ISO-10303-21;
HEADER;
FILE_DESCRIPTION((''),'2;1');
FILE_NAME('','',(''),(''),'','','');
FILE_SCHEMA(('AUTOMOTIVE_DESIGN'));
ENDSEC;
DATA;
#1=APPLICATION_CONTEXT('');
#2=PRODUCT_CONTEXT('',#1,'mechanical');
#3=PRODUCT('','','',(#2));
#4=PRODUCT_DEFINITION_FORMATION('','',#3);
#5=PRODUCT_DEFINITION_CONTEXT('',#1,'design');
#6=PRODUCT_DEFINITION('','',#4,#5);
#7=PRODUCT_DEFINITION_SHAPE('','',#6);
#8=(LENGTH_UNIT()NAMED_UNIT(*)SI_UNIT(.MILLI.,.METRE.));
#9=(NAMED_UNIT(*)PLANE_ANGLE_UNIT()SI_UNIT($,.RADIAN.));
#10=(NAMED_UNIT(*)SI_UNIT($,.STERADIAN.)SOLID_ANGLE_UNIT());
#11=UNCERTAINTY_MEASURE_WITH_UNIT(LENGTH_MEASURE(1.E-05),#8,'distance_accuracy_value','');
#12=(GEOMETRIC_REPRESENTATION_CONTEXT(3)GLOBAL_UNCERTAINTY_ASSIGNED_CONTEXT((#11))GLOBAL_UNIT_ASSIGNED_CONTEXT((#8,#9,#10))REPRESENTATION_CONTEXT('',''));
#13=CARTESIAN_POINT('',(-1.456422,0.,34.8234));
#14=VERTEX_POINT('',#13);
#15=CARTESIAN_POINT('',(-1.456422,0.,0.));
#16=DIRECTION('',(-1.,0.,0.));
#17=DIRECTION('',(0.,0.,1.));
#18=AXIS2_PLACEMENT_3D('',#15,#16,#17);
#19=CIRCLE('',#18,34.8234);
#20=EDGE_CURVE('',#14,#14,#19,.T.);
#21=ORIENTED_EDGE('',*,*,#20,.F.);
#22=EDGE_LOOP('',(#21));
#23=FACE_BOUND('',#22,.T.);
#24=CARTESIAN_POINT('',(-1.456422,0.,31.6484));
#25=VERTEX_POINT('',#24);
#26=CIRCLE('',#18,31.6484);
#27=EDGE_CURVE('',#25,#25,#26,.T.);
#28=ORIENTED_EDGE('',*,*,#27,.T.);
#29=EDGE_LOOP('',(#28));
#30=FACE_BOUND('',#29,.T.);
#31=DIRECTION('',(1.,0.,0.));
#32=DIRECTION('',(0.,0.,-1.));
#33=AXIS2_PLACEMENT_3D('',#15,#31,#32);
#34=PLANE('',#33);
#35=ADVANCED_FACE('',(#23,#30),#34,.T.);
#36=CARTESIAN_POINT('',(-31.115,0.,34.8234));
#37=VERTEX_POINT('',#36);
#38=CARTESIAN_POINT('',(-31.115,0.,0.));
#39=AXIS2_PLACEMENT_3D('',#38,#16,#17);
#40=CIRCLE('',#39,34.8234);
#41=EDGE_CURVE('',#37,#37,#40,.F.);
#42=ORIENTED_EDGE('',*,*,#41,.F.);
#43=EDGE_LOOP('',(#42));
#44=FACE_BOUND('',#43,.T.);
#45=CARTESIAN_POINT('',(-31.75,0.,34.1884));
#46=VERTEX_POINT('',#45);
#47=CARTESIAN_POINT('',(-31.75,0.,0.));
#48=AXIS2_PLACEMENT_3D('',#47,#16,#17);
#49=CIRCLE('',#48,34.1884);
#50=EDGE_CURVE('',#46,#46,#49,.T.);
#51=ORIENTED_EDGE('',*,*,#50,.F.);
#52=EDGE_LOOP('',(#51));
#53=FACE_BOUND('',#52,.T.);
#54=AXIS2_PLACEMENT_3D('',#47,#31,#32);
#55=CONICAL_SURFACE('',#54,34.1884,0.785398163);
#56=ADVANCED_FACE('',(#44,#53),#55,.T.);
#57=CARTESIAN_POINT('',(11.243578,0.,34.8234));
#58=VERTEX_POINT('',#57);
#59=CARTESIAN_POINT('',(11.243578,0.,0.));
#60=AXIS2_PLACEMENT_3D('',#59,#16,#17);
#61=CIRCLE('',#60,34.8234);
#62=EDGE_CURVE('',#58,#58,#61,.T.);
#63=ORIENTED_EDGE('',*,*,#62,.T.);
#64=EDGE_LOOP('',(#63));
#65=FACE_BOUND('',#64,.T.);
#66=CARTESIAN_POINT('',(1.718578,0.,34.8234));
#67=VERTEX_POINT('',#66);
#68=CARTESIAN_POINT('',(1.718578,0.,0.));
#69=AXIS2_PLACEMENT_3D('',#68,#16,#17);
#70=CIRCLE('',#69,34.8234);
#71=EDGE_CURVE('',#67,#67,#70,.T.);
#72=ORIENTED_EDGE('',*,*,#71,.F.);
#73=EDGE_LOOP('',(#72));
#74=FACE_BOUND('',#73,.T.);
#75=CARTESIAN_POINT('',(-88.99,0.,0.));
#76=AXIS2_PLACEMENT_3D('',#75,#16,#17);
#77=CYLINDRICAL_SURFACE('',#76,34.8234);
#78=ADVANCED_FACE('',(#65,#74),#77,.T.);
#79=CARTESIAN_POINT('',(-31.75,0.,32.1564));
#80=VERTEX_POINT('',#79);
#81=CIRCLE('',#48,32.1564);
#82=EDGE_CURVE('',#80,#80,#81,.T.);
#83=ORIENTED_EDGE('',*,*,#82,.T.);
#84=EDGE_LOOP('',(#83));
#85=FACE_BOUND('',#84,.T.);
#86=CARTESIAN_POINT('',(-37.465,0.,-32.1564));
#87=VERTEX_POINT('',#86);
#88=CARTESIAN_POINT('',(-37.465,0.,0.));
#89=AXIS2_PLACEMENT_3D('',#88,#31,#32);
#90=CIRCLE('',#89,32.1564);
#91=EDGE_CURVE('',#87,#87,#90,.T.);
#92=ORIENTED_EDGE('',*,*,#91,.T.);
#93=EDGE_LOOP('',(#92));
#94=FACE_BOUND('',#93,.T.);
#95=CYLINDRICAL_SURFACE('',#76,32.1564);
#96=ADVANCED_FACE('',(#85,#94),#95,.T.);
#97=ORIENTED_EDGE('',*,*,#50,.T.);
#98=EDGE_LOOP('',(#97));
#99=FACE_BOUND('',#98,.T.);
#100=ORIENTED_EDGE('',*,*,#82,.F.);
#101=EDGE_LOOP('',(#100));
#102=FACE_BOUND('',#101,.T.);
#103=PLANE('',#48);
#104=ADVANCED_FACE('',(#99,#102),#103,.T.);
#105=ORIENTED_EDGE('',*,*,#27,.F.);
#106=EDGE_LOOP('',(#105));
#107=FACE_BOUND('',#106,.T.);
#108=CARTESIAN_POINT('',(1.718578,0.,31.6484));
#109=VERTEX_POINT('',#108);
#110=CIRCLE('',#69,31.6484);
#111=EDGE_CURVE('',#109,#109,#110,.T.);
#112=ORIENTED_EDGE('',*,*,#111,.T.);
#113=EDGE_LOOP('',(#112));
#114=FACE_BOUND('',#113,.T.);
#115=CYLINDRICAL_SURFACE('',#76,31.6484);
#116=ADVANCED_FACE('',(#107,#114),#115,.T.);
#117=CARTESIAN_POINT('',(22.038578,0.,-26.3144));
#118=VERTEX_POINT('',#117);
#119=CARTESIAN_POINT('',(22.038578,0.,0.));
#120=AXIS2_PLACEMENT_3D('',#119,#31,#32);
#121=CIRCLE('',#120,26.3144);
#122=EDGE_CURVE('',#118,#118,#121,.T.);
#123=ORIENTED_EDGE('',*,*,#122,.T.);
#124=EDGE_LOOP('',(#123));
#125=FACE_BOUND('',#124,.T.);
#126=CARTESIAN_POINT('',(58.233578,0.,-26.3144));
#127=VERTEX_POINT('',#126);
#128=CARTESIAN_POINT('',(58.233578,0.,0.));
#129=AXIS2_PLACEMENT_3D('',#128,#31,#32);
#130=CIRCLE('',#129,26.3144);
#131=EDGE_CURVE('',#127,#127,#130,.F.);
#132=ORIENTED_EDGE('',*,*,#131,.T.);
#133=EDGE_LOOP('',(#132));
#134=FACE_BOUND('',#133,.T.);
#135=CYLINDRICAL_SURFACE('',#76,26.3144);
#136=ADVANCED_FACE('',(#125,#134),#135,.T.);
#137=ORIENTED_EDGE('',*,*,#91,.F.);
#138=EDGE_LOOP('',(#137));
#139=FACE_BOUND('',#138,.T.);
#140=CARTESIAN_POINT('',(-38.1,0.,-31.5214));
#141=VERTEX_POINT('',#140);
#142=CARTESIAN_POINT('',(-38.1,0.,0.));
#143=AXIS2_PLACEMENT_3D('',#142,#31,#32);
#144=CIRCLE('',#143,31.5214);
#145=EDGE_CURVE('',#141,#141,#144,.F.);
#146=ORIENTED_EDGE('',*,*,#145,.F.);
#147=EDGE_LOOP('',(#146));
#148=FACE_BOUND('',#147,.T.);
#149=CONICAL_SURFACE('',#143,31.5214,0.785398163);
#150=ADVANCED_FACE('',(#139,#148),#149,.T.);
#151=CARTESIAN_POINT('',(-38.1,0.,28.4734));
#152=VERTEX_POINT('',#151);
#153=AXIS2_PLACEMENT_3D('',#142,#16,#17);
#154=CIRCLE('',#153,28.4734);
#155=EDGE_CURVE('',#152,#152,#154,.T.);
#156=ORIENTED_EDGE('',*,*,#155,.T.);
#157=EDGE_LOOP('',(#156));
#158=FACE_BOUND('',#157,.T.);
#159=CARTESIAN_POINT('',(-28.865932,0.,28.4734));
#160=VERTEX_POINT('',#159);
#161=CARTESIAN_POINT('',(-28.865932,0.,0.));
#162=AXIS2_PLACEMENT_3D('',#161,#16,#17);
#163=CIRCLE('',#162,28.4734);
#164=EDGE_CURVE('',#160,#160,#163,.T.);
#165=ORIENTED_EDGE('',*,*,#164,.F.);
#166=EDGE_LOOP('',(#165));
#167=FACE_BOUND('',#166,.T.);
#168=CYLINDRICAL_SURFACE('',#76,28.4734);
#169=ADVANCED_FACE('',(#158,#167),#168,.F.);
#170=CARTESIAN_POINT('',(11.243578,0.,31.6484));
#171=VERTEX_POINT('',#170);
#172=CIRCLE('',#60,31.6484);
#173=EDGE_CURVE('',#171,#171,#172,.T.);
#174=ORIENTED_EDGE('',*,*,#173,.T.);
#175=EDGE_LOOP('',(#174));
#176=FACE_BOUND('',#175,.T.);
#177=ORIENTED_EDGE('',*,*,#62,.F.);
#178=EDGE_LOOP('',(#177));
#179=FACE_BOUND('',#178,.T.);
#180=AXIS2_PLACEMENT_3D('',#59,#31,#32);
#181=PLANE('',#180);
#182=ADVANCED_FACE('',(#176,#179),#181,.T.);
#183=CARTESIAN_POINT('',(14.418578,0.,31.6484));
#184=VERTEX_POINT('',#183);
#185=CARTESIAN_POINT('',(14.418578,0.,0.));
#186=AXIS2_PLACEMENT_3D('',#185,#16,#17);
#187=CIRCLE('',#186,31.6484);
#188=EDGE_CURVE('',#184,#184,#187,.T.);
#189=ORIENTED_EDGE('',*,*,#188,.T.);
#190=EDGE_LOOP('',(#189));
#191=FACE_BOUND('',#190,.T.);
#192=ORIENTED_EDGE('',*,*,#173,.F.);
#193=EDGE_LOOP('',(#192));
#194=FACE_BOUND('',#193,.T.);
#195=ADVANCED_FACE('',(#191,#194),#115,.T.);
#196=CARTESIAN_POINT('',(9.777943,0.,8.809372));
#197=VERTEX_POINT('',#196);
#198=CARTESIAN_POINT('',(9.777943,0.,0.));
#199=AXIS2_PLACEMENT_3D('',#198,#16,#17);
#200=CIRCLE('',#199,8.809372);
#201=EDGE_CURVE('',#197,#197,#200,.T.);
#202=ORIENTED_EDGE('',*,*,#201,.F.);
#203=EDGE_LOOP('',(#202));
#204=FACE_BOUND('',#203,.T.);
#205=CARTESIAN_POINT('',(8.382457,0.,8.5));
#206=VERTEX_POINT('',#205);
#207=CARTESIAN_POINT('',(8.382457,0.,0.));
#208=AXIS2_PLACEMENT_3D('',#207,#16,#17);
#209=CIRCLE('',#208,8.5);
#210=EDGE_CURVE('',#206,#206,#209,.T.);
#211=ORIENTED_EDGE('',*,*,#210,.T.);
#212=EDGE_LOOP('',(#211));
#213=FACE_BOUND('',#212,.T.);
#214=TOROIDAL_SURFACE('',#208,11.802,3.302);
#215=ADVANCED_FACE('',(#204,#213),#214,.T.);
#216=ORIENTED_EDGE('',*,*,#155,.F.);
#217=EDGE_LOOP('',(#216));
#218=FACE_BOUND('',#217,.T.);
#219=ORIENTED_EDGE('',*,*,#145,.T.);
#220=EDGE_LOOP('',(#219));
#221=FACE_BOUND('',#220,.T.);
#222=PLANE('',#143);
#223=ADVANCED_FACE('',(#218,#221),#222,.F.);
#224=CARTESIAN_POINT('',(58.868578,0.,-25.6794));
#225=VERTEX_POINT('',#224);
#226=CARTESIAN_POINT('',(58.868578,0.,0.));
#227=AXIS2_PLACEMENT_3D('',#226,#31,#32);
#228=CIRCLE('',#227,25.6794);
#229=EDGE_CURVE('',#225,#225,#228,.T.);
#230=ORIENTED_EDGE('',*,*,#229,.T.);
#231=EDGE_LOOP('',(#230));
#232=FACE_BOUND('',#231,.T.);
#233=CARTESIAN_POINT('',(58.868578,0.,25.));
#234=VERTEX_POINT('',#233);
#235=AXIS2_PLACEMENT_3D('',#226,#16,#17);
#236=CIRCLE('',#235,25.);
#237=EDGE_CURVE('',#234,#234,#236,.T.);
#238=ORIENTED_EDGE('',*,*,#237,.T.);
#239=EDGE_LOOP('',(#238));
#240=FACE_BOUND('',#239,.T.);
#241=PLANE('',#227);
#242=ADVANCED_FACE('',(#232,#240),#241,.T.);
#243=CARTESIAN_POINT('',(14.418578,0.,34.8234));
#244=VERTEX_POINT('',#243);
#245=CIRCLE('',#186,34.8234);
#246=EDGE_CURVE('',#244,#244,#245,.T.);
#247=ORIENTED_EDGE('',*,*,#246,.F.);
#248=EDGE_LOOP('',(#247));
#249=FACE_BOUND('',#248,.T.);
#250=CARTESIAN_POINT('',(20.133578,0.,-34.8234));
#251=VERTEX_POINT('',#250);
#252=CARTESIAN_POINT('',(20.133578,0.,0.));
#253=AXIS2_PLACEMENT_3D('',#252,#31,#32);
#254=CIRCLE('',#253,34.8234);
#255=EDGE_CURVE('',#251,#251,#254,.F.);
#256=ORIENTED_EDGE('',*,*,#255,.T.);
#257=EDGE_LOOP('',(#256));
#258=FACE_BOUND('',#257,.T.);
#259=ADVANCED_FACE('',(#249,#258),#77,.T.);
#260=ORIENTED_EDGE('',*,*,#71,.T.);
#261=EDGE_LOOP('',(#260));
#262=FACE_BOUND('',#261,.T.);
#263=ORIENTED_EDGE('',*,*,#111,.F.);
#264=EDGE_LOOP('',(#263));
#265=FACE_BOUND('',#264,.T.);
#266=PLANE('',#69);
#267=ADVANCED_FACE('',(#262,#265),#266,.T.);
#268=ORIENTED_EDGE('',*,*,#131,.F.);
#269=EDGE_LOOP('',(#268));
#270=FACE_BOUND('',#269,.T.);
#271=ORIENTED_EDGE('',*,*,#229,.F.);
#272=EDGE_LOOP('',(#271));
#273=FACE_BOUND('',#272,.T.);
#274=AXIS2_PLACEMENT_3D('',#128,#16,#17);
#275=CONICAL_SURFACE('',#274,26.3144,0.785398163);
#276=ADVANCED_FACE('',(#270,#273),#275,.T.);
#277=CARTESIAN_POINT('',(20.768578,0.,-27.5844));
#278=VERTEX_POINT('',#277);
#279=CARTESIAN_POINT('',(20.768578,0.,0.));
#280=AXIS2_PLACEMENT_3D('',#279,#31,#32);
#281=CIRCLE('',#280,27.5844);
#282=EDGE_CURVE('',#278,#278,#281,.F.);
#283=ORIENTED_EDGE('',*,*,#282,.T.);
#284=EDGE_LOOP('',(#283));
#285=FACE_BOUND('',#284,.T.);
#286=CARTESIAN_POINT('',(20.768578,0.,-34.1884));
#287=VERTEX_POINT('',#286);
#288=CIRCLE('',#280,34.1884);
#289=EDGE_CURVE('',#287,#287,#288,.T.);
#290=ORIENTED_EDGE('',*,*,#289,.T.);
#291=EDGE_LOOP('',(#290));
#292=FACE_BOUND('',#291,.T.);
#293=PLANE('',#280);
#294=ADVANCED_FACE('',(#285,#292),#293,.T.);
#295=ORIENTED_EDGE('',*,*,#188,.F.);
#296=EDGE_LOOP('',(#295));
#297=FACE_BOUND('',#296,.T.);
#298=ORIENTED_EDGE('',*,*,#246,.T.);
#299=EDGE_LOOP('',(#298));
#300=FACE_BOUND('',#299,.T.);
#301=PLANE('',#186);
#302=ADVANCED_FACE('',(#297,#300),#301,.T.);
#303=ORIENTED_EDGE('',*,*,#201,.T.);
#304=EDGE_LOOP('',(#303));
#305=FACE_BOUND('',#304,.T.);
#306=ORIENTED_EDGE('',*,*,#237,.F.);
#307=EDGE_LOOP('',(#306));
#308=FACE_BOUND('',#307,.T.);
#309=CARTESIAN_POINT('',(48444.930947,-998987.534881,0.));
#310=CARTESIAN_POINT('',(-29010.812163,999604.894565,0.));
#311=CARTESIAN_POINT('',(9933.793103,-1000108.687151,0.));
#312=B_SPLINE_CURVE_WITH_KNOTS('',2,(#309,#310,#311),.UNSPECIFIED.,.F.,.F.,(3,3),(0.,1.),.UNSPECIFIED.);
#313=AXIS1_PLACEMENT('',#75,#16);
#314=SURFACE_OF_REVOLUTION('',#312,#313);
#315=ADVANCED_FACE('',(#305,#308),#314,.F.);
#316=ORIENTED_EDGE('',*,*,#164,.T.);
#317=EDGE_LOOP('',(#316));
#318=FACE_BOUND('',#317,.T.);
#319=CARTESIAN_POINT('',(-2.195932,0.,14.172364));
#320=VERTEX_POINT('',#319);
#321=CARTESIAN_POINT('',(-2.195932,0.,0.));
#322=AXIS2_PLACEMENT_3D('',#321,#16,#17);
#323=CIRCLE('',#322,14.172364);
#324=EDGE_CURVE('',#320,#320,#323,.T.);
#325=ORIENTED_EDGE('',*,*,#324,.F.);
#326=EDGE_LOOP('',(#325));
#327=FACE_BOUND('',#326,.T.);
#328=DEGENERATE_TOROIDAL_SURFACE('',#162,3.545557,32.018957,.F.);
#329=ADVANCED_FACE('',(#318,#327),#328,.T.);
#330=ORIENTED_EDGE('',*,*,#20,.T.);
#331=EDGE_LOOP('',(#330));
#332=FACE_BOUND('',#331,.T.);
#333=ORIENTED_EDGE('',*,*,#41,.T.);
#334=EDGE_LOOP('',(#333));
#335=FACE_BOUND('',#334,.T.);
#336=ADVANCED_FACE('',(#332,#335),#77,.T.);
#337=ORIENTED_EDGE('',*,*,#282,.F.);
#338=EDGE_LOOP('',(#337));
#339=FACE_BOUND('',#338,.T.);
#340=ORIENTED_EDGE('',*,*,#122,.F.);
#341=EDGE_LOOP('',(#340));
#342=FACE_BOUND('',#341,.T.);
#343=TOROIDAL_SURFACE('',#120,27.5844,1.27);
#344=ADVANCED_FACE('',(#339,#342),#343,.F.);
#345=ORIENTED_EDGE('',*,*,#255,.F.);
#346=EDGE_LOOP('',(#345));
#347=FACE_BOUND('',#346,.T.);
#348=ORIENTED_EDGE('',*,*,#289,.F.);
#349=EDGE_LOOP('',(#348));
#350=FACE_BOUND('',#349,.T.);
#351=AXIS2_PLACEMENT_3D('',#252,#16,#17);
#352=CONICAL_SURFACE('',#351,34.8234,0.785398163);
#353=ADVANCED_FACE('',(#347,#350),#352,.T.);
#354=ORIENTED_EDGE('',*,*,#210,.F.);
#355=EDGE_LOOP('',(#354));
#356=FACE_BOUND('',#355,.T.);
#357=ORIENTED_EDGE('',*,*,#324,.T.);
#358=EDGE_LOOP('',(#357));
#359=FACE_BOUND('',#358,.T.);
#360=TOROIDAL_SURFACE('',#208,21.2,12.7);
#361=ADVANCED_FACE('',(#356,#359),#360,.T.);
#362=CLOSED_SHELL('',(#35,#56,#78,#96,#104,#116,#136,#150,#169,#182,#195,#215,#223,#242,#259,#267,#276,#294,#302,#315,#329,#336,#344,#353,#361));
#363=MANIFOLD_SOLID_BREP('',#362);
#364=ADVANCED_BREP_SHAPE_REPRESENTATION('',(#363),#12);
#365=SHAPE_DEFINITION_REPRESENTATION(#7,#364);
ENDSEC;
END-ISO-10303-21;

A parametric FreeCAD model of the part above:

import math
import FreeCAD as App
import Part
import Sketcher
Q = App.Units.Quantity


def edges_at(feature, points):
    """Names of the edges that pass closest to the given points."""
    edges = feature.Shape.Edges
    near = lambda p: min(range(len(edges)), key=lambda i: edges[i].distToShape(Part.Vertex(*p))[0])
    return sorted({f"Edge{near(p) + 1}" for p in points})

doc = App.newDocument("Part")
body = doc.addObject("PartDesign::Body", "Body")

# Sketch on XY plane
sketch1 = body.newObject("Sketcher::SketchObject", "Sketch")
sketch1.AttachmentSupport = (doc.getObject("XY_Plane"), [""])
sketch1.MapMode = "FlatFace"
sketch1.addGeometry(Part.LineSegment(App.Vector(-31.75, 32.1564, 0), App.Vector(-38.1, 32.1564, 0)), False)
sketch1.addGeometry(Part.LineSegment(App.Vector(-38.1, 32.1564, 0), App.Vector(-38.1, 28.4734, 0)), False)
sketch1.addGeometry(Part.LineSegment(App.Vector(-38.1, 28.4734, 0), App.Vector(-28.865932, 28.4734, 0)), False)
sketch1.addGeometry(Part.ArcOfCircle(Part.Circle(App.Vector(-28.865932, -3.545557, 0), App.Vector(0, 0, 1), 32.018957), math.radians(33.597637), math.radians(90)), False)
sketch1.addGeometry(Part.ArcOfCircle(Part.Circle(App.Vector(8.382457, 21.2, 0), App.Vector(0, 0, 1), 12.7), math.radians(-146.402363), math.radians(-90)), False)
sketch1.addGeometry(Part.ArcOfCircle(Part.Circle(App.Vector(8.382457, 11.802, 0), App.Vector(0, 0, 1), 3.302), math.radians(-90), math.radians(-65)), False)
sketch1.addGeometry(Part.BSplineCurve([App.Vector(58.868578, 25, 0), App.Vector(34.22703, 20.210168, 0), App.Vector(9.777943, 8.809372, 0)], [3, 3], [0, 1], False, 2, [1, 1, 1], False), False)
sketch1.addGeometry(Part.LineSegment(App.Vector(58.868578, 25, 0), App.Vector(58.868578, 26.3144, 0)), False)
sketch1.addGeometry(Part.LineSegment(App.Vector(58.868578, 26.3144, 0), App.Vector(20.768578, 26.3144, 0)), False)
sketch1.addGeometry(Part.LineSegment(App.Vector(20.768578, 26.3144, 0), App.Vector(20.768578, 34.8234, 0)), False)
sketch1.addGeometry(Part.LineSegment(App.Vector(20.768578, 34.8234, 0), App.Vector(14.418578, 34.8234, 0)), False)
sketch1.addGeometry(Part.LineSegment(App.Vector(14.418578, 34.8234, 0), App.Vector(14.418578, 31.6484, 0)), False)
sketch1.addGeometry(Part.LineSegment(App.Vector(14.418578, 31.6484, 0), App.Vector(11.243578, 31.6484, 0)), False)
sketch1.addGeometry(Part.LineSegment(App.Vector(11.243578, 31.6484, 0), App.Vector(11.243578, 34.8234, 0)), False)
sketch1.addGeometry(Part.LineSegment(App.Vector(11.243578, 34.8234, 0), App.Vector(1.718578, 34.8234, 0)), False)
sketch1.addGeometry(Part.LineSegment(App.Vector(1.718578, 34.8234, 0), App.Vector(1.718578, 31.6484, 0)), False)
sketch1.addGeometry(Part.LineSegment(App.Vector(1.718578, 31.6484, 0), App.Vector(-1.456422, 31.6484, 0)), False)
sketch1.addGeometry(Part.LineSegment(App.Vector(-1.456422, 31.6484, 0), App.Vector(-1.456422, 34.8234, 0)), False)
sketch1.addGeometry(Part.LineSegment(App.Vector(-1.456422, 34.8234, 0), App.Vector(-31.75, 34.8234, 0)), False)
sketch1.addGeometry(Part.LineSegment(App.Vector(-31.75, 34.8234, 0), App.Vector(-31.75, 32.1564, 0)), False)
sketch1.addConstraint(Sketcher.Constraint("Block", 6))
sketch1.addConstraint(Sketcher.Constraint("Coincident", 0, 2, 1, 1))
sketch1.addConstraint(Sketcher.Constraint("Coincident", 1, 2, 2, 1))
sketch1.addConstraint(Sketcher.Constraint("Tangent", 2, 2, 3, 2))
sketch1.addConstraint(Sketcher.Constraint("Tangent", 3, 1, 4, 1))
sketch1.addConstraint(Sketcher.Constraint("Tangent", 4, 2, 5, 1))
sketch1.addConstraint(Sketcher.Constraint("Coincident", 5, 2, 6, 2))
sketch1.addConstraint(Sketcher.Constraint("Coincident", 6, 1, 7, 1))
sketch1.addConstraint(Sketcher.Constraint("Coincident", 7, 2, 8, 1))
sketch1.addConstraint(Sketcher.Constraint("Coincident", 8, 2, 9, 1))
sketch1.addConstraint(Sketcher.Constraint("Coincident", 9, 2, 10, 1))
sketch1.addConstraint(Sketcher.Constraint("Coincident", 10, 2, 11, 1))
sketch1.addConstraint(Sketcher.Constraint("Coincident", 11, 2, 12, 1))
sketch1.addConstraint(Sketcher.Constraint("Coincident", 12, 2, 13, 1))
sketch1.addConstraint(Sketcher.Constraint("Coincident", 13, 2, 14, 1))
sketch1.addConstraint(Sketcher.Constraint("Coincident", 14, 2, 15, 1))
sketch1.addConstraint(Sketcher.Constraint("Coincident", 15, 2, 16, 1))
sketch1.addConstraint(Sketcher.Constraint("Coincident", 16, 2, 17, 1))
sketch1.addConstraint(Sketcher.Constraint("Coincident", 17, 2, 18, 1))
sketch1.addConstraint(Sketcher.Constraint("Coincident", 18, 2, 19, 1))
sketch1.addConstraint(Sketcher.Constraint("Coincident", 19, 2, 0, 1))
sketch1.addConstraint(Sketcher.Constraint("Horizontal", 0))
sketch1.addConstraint(Sketcher.Constraint("Vertical", 1))
sketch1.addConstraint(Sketcher.Constraint("Horizontal", 2))
sketch1.addConstraint(Sketcher.Constraint("Vertical", 7))
sketch1.addConstraint(Sketcher.Constraint("Horizontal", 8))
sketch1.addConstraint(Sketcher.Constraint("Vertical", 9))
sketch1.addConstraint(Sketcher.Constraint("Horizontal", 10))
sketch1.addConstraint(Sketcher.Constraint("Vertical", 11))
sketch1.addConstraint(Sketcher.Constraint("Horizontal", 12))
sketch1.addConstraint(Sketcher.Constraint("Vertical", 13))
sketch1.addConstraint(Sketcher.Constraint("Horizontal", 14))
sketch1.addConstraint(Sketcher.Constraint("Vertical", 15))
sketch1.addConstraint(Sketcher.Constraint("Horizontal", 16))
sketch1.addConstraint(Sketcher.Constraint("Vertical", 17))
sketch1.addConstraint(Sketcher.Constraint("Horizontal", 18))
sketch1.addConstraint(Sketcher.Constraint("Vertical", 19))
sketch1.addConstraint(Sketcher.Constraint("Horizontal", 10, 2, 13, 2))
sketch1.addConstraint(Sketcher.Constraint("Horizontal", 12, 2, 15, 2))
sketch1.addConstraint(Sketcher.Constraint("Horizontal", 14, 2, 17, 2))
sketch1.addConstraint(Sketcher.Constraint("Vertical", 4, 3, 5, 3))
sketch1.addConstraint(Sketcher.Constraint("Equal", 0, 10))
sketch1.addConstraint(Sketcher.Constraint("Equal", 12, 16))
sketch1.addConstraint(Sketcher.Constraint("Equal", 16, 11))
sketch1.addConstraint(Sketcher.Constraint("Radius", 4, Q("0.5 in")))
sketch1.addConstraint(Sketcher.Constraint("Radius", 5, Q("0.13 in")))
sketch1.addConstraint(Sketcher.Constraint("DistanceX", 8, 2, 8, 1, Q("1.5 in")))
sketch1.addConstraint(Sketcher.Constraint("DistanceX", 0, 2, 0, 1, Q("0.25 in")))
sketch1.addConstraint(Sketcher.Constraint("DistanceX", 0, 2, -1, 1, Q("1.5 in")))
sketch1.addConstraint(Sketcher.Constraint("DistanceX", 14, 2, 10, 2, Q("0.5 in")))
sketch1.addConstraint(Sketcher.Constraint("DistanceX", 12, 2, 12, 1, Q("0.125 in")))
sketch1.addConstraint(Sketcher.Constraint("DistanceY", 1, 2, 1, 1, Q("0.145 in")))
sketch1.addConstraint(Sketcher.Constraint("DistanceY", 9, 1, 9, 2, Q("0.335 in")))
sketch1.addConstraint(Sketcher.Constraint("DistanceY", 19, 2, 19, 1, Q("0.105 in")))
sketch1.addConstraint(Sketcher.Constraint("DistanceX", 2, 2, 3, 1, Q("1.05 in")))
sketch1.addConstraint(Sketcher.Constraint("DistanceY", -1, 1, 0, 2, Q("1.266 in")))
sketch1.addConstraint(Sketcher.Constraint("Radius", 3, 32.018957))
revolution = body.newObject("PartDesign::Revolution", "Revolution")
revolution.Profile = sketch1
revolution.ReferenceAxis = (sketch1, ["H_Axis"])
revolution.Angle = 360
doc.recompute()

chamfer = body.newObject("PartDesign::Chamfer", "Chamfer")
chamfer.Base = (revolution, edges_at(revolution, [
    (-38.1, 0, -32.156),
    (-31.75, 0, -34.823),
    (20.769, 0, -34.823),
    (58.869, 0, -26.314),
]))
chamfer.Size = Q("0.025 in")
doc.recompute()

fillet = body.newObject("PartDesign::Fillet", "Fillet")
fillet.Base = (chamfer, edges_at(chamfer, [(20.769, 0, -26.314)]))
fillet.Radius = Q("0.05 in")

doc.recompute()
